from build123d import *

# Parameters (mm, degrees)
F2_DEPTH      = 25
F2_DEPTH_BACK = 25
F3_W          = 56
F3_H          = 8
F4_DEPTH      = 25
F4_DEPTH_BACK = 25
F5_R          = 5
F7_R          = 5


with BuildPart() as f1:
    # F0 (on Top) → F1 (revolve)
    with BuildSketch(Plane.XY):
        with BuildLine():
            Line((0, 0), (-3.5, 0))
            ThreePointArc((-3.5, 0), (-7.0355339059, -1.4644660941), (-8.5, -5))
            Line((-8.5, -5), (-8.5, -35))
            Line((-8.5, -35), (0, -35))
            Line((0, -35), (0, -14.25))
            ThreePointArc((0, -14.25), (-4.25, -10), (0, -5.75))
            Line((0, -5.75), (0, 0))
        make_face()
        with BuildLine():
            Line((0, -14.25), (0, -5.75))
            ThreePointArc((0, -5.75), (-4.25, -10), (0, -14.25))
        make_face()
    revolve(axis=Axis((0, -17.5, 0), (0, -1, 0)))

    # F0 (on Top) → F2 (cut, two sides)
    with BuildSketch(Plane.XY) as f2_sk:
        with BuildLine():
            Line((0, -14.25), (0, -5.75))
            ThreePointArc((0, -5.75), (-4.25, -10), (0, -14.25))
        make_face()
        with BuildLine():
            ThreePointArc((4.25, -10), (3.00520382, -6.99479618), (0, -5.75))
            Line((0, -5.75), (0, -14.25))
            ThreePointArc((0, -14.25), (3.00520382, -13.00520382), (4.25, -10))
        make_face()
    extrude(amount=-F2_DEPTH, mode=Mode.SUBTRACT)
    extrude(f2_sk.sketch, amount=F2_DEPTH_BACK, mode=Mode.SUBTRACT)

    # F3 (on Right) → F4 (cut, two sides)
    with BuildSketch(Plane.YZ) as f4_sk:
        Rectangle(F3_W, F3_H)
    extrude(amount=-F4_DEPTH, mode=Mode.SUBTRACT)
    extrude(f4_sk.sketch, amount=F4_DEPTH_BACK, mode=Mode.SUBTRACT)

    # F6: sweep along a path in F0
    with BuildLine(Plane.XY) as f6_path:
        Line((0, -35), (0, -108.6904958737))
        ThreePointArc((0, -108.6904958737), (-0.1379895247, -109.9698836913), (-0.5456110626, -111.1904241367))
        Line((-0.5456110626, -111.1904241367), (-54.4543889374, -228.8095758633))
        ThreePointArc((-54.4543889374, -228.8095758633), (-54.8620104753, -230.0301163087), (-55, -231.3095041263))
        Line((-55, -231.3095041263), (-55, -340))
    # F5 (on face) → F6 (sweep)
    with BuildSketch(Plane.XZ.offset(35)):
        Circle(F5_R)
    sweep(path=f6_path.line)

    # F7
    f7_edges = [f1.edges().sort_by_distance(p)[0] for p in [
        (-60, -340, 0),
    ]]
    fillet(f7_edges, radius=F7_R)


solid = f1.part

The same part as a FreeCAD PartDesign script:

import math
import FreeCAD as App
import Part
import Sketcher
from FreeCAD import Vector
Q = App.Units.Quantity


def edges_at(feature, points):
    """Names of the edges that pass closest to the given points."""
    edges = feature.Shape.Edges
    near = lambda p: min(range(len(edges)), key=lambda i: edges[i].distToShape(Part.Vertex(*p))[0])
    return sorted({f"Edge{near(p) + 1}" for p in points})

doc = App.newDocument("Part")
body = doc.addObject("PartDesign::Body", "Body")

# Sketch on XY plane
sketch1 = body.newObject("Sketcher::SketchObject", "Sketch")
sketch1.AttachmentSupport = (doc.getObject("XY_Plane"), [""])
sketch1.MapMode = "FlatFace"
sketch1.addGeometry([
    Part.LineSegment(Vector(0, 0, 0), Vector(-3.5, 0, 0)),  # 0
    Part.ArcOfCircle(Part.Circle(Vector(-3.5, -5, 0), Vector(0, 0, 1), 5), math.radians(90), math.radians(180)),  # 1
    Part.LineSegment(Vector(-8.5, -5, 0), Vector(-8.5, -35, 0)),  # 2
    Part.LineSegment(Vector(-8.5, -35, 0), Vector(0, -35, 0)),  # 3
    Part.LineSegment(Vector(0, -35, 0), Vector(0, 0, 0)),  # 4
], False)
sketch1.addConstraint([
    Sketcher.Constraint("Tangent", 0, 2, 1, 1),
    Sketcher.Constraint("Tangent", 1, 2, 2, 1),
    Sketcher.Constraint("Coincident", 2, 2, 3, 1),
    Sketcher.Constraint("Coincident", 3, 2, 4, 1),
    Sketcher.Constraint("Coincident", 4, 2, 0, 1),
    Sketcher.Constraint("Horizontal", 0),
    Sketcher.Constraint("Vertical", 2),
    Sketcher.Constraint("Horizontal", 3),
    Sketcher.Constraint("Vertical", 4),
    Sketcher.Constraint("Coincident", 4, 2, -1, 1),
    Sketcher.Constraint("Radius", 1, Q("5 mm")),
    Sketcher.Constraint("DistanceY", 2, 2, 2, 1, Q("30 mm")),
    Sketcher.Constraint("DistanceX", 0, 2, 0, 1, Q("3.5 mm")),
])
revolution = body.newObject("PartDesign::Revolution", "Revolution")
revolution.Profile = sketch1
revolution.ReferenceAxis = (sketch1, ["V_Axis"])
revolution.Angle = 360

# Sketch on XY plane
sketch2 = body.newObject("Sketcher::SketchObject", "Sketch001")
sketch2.AttachmentSupport = (doc.getObject("XY_Plane"), [""])
sketch2.MapMode = "FlatFace"
sketch2.addGeometry([
    Part.ArcOfCircle(Part.Circle(Vector(0, -10, 0), Vector(0, 0, 1), 4.2), math.radians(90), math.radians(270)),
    Part.ArcOfCircle(Part.Circle(Vector(0, -10, 0), Vector(0, 0, 1), 4.2), math.radians(-90), math.radians(0)),
    Part.ArcOfCircle(Part.Circle(Vector(0, -10, 0), Vector(0, 0, 1), 4.2), math.radians(0), math.radians(90)),
], False)
sketch2.addConstraint([
    Sketcher.Constraint("Tangent", 0, 2, 1, 1),
    Sketcher.Constraint("Tangent", 1, 2, 2, 1),
    Sketcher.Constraint("Tangent", 2, 2, 0, 1),
    Sketcher.Constraint("PointOnObject", 0, 3, -2),
    Sketcher.Constraint("PointOnObject", 0, 2, -2),
    Sketcher.Constraint("PointOnObject", 2, 2, -2),
    Sketcher.Constraint("Horizontal", 2, 3, 1, 2),
    Sketcher.Constraint("Radius", 0, Q("4.25 mm")),
    Sketcher.Constraint("DistanceY", 0, 3, -1, 1, Q("10 mm")),
])
pocket1 = body.newObject("PartDesign::Pocket", "Pocket")
pocket1.Profile = sketch2
pocket1.Type = "ThroughAll"
pocket1.Midplane = True

# Sketch on YZ plane
sketch3 = body.newObject("Sketcher::SketchObject", "Sketch002")
sketch3.AttachmentSupport = (doc.getObject("YZ_Plane"), [""])
sketch3.MapMode = "FlatFace"
sketch3.addGeometry([
    Part.LineSegment(Vector(-28, 4, 0), Vector(-28, -4, 0)),
    Part.LineSegment(Vector(-28, -4, 0), Vector(28, -4, 0)),
    Part.LineSegment(Vector(28, -4, 0), Vector(28, 4, 0)),
    Part.LineSegment(Vector(28, 4, 0), Vector(-28, 4, 0)),
], False)
sketch3.addConstraint([
    Sketcher.Constraint("Coincident", 0, 2, 1, 1),
    Sketcher.Constraint("Coincident", 1, 2, 2, 1),
    Sketcher.Constraint("Coincident", 2, 2, 3, 1),
    Sketcher.Constraint("Coincident", 3, 2, 0, 1),
    Sketcher.Constraint("Vertical", 0),
    Sketcher.Constraint("Horizontal", 1),
    Sketcher.Constraint("Vertical", 2),
    Sketcher.Constraint("Horizontal", 3),
    Sketcher.Constraint("Symmetric", 0, 2, 2, 2, -1, 1),
    Sketcher.Constraint("DistanceX", 1, 1, 1, 2, Q("56 mm")),
    Sketcher.Constraint("DistanceY", 0, 2, 0, 1, Q("8 mm")),
])
pocket2 = body.newObject("PartDesign::Pocket", "Pocket001")
pocket2.Profile = sketch3
pocket2.Type = "ThroughAll"
pocket2.Midplane = True

# Sketch on XZ plane
sketch4 = body.newObject("Sketcher::SketchObject", "Sketch003")
sketch4.AttachmentSupport = (doc.getObject("XZ_Plane"), [""])
sketch4.MapMode = "FlatFace"
sketch4.AttachmentOffset = App.Placement(Vector(0, 0, 35), App.Rotation())
sketch4.addGeometry(Part.Circle(Vector(0, 0, 0), Vector(0, 0, 1), 5), False)
sketch4.addConstraint([
    Sketcher.Constraint("Coincident", 0, 3, -1, 1),
    Sketcher.Constraint("Diameter", 0, Q("10 mm")),
])

# Sketch on XY plane
sketch5 = body.newObject("Sketcher::SketchObject", "Sketch004")
sketch5.AttachmentSupport = (doc.getObject("XY_Plane"), [""])
sketch5.MapMode = "FlatFace"
sketch5.addGeometry([
    Part.LineSegment(Vector(0, -35, 0), Vector(0, -108.7, 0)),  # 0
    Part.ArcOfCircle(Part.Circle(Vector(-6, -108.7, 0), Vector(0, 0, 1), 6), math.radians(-25), math.radians(0)),  # 1
    Part.LineSegment(Vector(-0.5, -111.2, 0), Vector(-54.5, -228.8, 0)),  # 2
    Part.ArcOfCircle(Part.Circle(Vector(-49, -231.3, 0), Vector(0, 0, 1), 6), math.radians(155), math.radians(180)),  # 3
    Part.LineSegment(Vector(-55, -231.3, 0), Vector(-55, -340, 0)),  # 4
], False)
sketch5.addConstraint([
    Sketcher.Constraint("Tangent", 0, 2, 1, 2),
    Sketcher.Constraint("Tangent", 1, 1, 2, 1),
    Sketcher.Constraint("Tangent", 2, 2, 3, 1),
    Sketcher.Constraint("Tangent", 3, 2, 4, 1),
    Sketcher.Constraint("Vertical", 0),
    Sketcher.Constraint("Vertical", 4),
    Sketcher.Constraint("Equal", 1, 3),
    Sketcher.Constraint("PointOnObject", 0, 1, -2),
    Sketcher.Constraint("Radius", 1, Q("6 mm")),
    Sketcher.Constraint("DistanceX", 3, 3, -1, 1, Q("49 mm")),
    Sketcher.Constraint("DistanceY", 0, 1, -1, 1, Q("35 mm")),
    Sketcher.Constraint("DistanceY", 4, 2, -1, 1, Q("340 mm")),
    Sketcher.Constraint("Distance", 2, Q("129.38478 mm")),
    Sketcher.Constraint("DistanceY", 0, 2, 0, 1, Q("73.690496 mm")),
])
doc.recompute()

additivepipe = body.newObject("PartDesign::AdditivePipe", "AdditivePipe")
additivepipe.Profile = sketch4
additivepipe.Spine = (sketch5, ["Edge1", "Edge2", "Edge3", "Edge4", "Edge5"])
doc.recompute()

fillet = body.newObject("PartDesign::Fillet", "Fillet")
fillet.Base = (additivepipe, edges_at(additivepipe, [(-60, -340, 0)]))
fillet.Radius = 5

doc.recompute()
